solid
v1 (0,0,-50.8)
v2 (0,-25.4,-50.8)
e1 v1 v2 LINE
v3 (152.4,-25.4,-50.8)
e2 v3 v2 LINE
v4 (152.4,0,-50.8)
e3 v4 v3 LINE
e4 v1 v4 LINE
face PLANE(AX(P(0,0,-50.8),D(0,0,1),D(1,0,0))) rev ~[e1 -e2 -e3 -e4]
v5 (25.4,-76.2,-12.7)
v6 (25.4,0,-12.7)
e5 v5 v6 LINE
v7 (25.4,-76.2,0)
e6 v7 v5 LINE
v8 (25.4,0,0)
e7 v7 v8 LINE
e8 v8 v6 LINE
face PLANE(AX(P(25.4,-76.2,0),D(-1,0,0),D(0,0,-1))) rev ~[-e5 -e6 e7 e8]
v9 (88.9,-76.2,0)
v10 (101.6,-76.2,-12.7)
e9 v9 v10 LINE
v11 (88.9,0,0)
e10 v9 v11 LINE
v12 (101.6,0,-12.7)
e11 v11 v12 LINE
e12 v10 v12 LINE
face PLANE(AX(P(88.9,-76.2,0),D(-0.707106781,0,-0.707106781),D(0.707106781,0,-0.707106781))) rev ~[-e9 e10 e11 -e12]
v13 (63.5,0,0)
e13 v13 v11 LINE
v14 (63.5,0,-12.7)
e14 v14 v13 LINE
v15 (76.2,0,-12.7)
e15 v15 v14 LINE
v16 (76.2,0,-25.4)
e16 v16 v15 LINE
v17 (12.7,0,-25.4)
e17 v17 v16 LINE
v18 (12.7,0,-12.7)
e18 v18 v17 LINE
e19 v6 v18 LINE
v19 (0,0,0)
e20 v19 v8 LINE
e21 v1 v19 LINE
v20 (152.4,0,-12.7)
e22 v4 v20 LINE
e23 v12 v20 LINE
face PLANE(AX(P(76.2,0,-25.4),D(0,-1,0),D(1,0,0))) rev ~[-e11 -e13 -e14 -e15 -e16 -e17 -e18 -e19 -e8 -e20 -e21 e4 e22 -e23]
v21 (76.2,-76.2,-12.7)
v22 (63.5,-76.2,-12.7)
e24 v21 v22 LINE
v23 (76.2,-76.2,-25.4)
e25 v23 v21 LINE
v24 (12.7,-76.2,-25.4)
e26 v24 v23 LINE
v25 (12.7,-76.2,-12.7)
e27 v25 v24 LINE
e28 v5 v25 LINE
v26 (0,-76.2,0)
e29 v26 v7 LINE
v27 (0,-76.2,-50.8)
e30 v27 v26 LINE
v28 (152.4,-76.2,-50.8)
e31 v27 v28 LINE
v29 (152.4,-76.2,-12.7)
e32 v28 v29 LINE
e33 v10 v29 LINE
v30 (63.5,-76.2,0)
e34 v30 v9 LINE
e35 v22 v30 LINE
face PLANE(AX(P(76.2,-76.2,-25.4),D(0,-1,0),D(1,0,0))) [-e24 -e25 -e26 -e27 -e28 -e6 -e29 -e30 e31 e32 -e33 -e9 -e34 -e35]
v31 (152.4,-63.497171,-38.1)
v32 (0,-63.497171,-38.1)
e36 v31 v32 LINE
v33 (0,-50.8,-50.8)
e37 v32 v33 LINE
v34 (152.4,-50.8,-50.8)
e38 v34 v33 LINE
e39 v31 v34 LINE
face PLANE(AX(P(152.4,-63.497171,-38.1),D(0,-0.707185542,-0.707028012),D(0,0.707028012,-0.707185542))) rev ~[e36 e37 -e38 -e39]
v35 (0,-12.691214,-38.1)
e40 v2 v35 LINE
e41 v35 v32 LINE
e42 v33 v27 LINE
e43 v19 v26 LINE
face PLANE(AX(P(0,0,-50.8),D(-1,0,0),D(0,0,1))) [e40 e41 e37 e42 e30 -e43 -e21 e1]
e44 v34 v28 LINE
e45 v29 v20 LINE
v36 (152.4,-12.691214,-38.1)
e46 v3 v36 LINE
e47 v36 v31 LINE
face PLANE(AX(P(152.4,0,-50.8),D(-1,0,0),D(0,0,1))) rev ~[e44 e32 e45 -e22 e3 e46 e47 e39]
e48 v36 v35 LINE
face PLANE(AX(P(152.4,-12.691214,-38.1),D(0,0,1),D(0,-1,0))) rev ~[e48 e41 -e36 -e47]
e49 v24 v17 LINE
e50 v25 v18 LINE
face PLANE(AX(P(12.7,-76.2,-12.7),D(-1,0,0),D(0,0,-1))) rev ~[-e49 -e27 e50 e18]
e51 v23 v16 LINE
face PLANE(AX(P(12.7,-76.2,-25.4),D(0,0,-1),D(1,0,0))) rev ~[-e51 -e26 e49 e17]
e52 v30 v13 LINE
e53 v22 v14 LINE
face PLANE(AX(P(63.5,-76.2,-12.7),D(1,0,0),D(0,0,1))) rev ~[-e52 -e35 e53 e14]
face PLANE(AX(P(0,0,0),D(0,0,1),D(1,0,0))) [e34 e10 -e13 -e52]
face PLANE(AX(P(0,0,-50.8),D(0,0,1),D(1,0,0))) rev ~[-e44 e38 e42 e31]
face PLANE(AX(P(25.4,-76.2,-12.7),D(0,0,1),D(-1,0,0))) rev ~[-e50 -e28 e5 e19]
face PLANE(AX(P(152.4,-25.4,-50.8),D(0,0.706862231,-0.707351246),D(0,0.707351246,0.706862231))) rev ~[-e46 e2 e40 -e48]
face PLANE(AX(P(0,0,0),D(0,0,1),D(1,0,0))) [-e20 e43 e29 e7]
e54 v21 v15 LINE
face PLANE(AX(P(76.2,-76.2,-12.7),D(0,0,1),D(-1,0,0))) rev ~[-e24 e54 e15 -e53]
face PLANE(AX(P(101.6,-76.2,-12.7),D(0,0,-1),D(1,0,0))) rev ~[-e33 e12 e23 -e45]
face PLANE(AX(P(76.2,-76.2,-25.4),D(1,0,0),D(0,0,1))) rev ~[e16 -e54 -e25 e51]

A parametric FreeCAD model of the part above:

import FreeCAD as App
import Part
import Sketcher
from FreeCAD import Vector
Q = App.Units.Quantity

doc = App.newDocument("Part")
params = doc.addObject("Spreadsheet::Sheet", "Params")
for row, (alias, value) in enumerate([
    ("sketch1_width", "6 in"),
    ("sketch1_height", "2 in"),
    ("pad1_length", "3 in"),
    ("sketch2_width", "2 in"),
    ("sketch2_width2", "2.5 in"),
    ("sketch2_height", "0.5 in"),
    ("pocket1_length", "3 in"),
    ("sketch3_width", "1.5 in"),
    ("sketch3_width2", "0.5 in"),
    ("pocket2_length", "3 in"),
    ("sketch4_width", "1 in"),
    ("pocket3_length", "6 in"),
], start=1):
    params.set(f"A{row}", alias)
    params.set(f"B{row}", "=" + value)
    params.setAlias(f"B{row}", alias)

body = doc.addObject("PartDesign::Body", "Body")

sketch1 = body.newObject("Sketcher::SketchObject", "Sketch")
sketch1.AttachmentSupport = (doc.getObject("XZ_Plane"), [""])
sketch1.MapMode = "FlatFace"
sketch1.addGeometry(Part.LineSegment(Vector(0, 0, 0), Vector(0, -50.8, 0)), False)
sketch1.addGeometry(Part.LineSegment(Vector(0, -50.8, 0), Vector(152.4, -50.8, 0)), False)
sketch1.addGeometry(Part.LineSegment(Vector(152.4, -50.8, 0), Vector(152.4, 0, 0)), False)
sketch1.addGeometry(Part.LineSegment(Vector(152.4, 0, 0), Vector(0, 0, 0)), False)
sketch1.addConstraint(Sketcher.Constraint("Coincident", 0, 2, 1, 1))
sketch1.addConstraint(Sketcher.Constraint("Coincident", 1, 2, 2, 1))
sketch1.addConstraint(Sketcher.Constraint("Coincident", 2, 2, 3, 1))
sketch1.addConstraint(Sketcher.Constraint("Coincident", 3, 2, 0, 1))
sketch1.addConstraint(Sketcher.Constraint("Vertical", 0))
sketch1.addConstraint(Sketcher.Constraint("Horizontal", 1))
sketch1.addConstraint(Sketcher.Constraint("Vertical", 2))
sketch1.addConstraint(Sketcher.Constraint("Horizontal", 3))
sketch1.addConstraint(Sketcher.Constraint("Coincident", 3, 2, -1, 1))
sketch1.addConstraint(Sketcher.Constraint("DistanceX", 1, 1, 1, 2, Q("6 in")))
sketch1.addConstraint(Sketcher.Constraint("DistanceY", 0, 2, 0, 1, Q("2 in")))
sketch1.setExpression("Constraints[9]", "Params.sketch1_width")
sketch1.setExpression("Constraints[10]", "Params.sketch1_height")
pad1 = body.newObject("PartDesign::Pad", "Pad")
pad1.Profile = sketch1
pad1.setExpression("Length", "Params.pad1_length")

sketch2 = body.newObject("Sketcher::SketchObject", "Sketch001")
sketch2.AttachmentSupport = (doc.getObject("XZ_Plane"), [""])
sketch2.MapMode = "FlatFace"
sketch2.AttachmentOffset = App.Placement(Vector(0, 0, 3 * 25.4), App.Rotation())
sketch2.addGeometry(Part.LineSegment(Vector(152.4, -12.7, 0), Vector(152.4, 0, 0)), False)
sketch2.addGeometry(Part.LineSegment(Vector(152.4, 0, 0), Vector(88.9, 0, 0)), False)
sketch2.addGeometry(Part.LineSegment(Vector(88.9, 0, 0), Vector(101.6, -12.7, 0)), False)
sketch2.addGeometry(Part.LineSegment(Vector(101.6, -12.7, 0), Vector(152.4, -12.7, 0)), False)
sketch2.addConstraint(Sketcher.Constraint("Coincident", 0, 2, 1, 1))
sketch2.addConstraint(Sketcher.Constraint("Coincident", 1, 2, 2, 1))
sketch2.addConstraint(Sketcher.Constraint("Coincident", 2, 2, 3, 1))
sketch2.addConstraint(Sketcher.Constraint("Coincident", 3, 2, 0, 1))
sketch2.addConstraint(Sketcher.Constraint("Vertical", 0))
sketch2.addConstraint(Sketcher.Constraint("Horizontal", 1))
sketch2.addConstraint(Sketcher.Constraint("Horizontal", 3))
sketch2.addConstraint(Sketcher.Constraint("PointOnObject", 0, 2, -1))
sketch2.addConstraint(Sketcher.Constraint("DistanceX", 3, 1, 3, 2, Q("2 in")))
sketch2.addConstraint(Sketcher.Constraint("DistanceX", 1, 2, 1, 1, Q("2.5 in")))
sketch2.addConstraint(Sketcher.Constraint("DistanceY", 0, 1, 0, 2, Q("0.5 in")))
sketch2.addConstraint(Sketcher.Constraint("DistanceX", -1, 1, 0, 2, Q("6 in")))
sketch2.setExpression("Constraints[8]", "Params.sketch2_width")
sketch2.setExpression("Constraints[9]", "Params.sketch2_width2")
sketch2.setExpression("Constraints[10]", "Params.sketch2_height")
pocket1 = body.newObject("PartDesign::Pocket", "Pocket")
pocket1.Profile = sketch2
pocket1.setExpression("Length", "Params.pocket1_length")

sketch3 = body.newObject("Sketcher::SketchObject", "Sketch002")
sketch3.AttachmentSupport = (doc.getObject("XZ_Plane"), [""])
sketch3.MapMode = "FlatFace"
sketch3.AttachmentOffset = App.Placement(Vector(0, 0, 3 * 25.4), App.Rotation())
sketch3.addGeometry(Part.LineSegment(Vector(63.5, 0, 0), Vector(25.4, 0, 0)), False)
sketch3.addGeometry(Part.LineSegment(Vector(25.4, 0, 0), Vector(25.4, -12.7, 0)), False)
sketch3.addGeometry(Part.LineSegment(Vector(25.4, -12.7, 0), Vector(12.7, -12.7, 0)), False)
sketch3.addGeometry(Part.LineSegment(Vector(12.7, -12.7, 0), Vector(12.7, -25.4, 0)), False)
sketch3.addGeometry(Part.LineSegment(Vector(12.7, -25.4, 0), Vector(76.2, -25.4, 0)), False)
sketch3.addGeometry(Part.LineSegment(Vector(76.2, -25.4, 0), Vector(76.2, -12.7, 0)), False)
sketch3.addGeometry(Part.LineSegment(Vector(76.2, -12.7, 0), Vector(63.5, -12.7, 0)), False)
sketch3.addGeometry(Part.LineSegment(Vector(63.5, -12.7, 0), Vector(63.5, 0, 0)), False)
sketch3.addConstraint(Sketcher.Constraint("Coincident", 0, 2, 1, 1))
sketch3.addConstraint(Sketcher.Constraint("Coincident", 1, 2, 2, 1))
sketch3.addConstraint(Sketcher.Constraint("Coincident", 2, 2, 3, 1))
sketch3.addConstraint(Sketcher.Constraint("Coincident", 3, 2, 4, 1))
sketch3.addConstraint(Sketcher.Constraint("Coincident", 4, 2, 5, 1))
sketch3.addConstraint(Sketcher.Constraint("Coincident", 5, 2, 6, 1))
sketch3.addConstraint(Sketcher.Constraint("Coincident", 6, 2, 7, 1))
sketch3.addConstraint(Sketcher.Constraint("Coincident", 7, 2, 0, 1))
sketch3.addConstraint(Sketcher.Constraint("Horizontal", 0))
sketch3.addConstraint(Sketcher.Constraint("Vertical", 1))
sketch3.addConstraint(Sketcher.Constraint("Horizontal", 2))
sketch3.addConstraint(Sketcher.Constraint("Vertical", 3))
sketch3.addConstraint(Sketcher.Constraint("Horizontal", 4))
sketch3.addConstraint(Sketcher.Constraint("Vertical", 5))
sketch3.addConstraint(Sketcher.Constraint("Horizontal", 6))
sketch3.addConstraint(Sketcher.Constraint("Vertical", 7))
sketch3.addConstraint(Sketcher.Constraint("PointOnObject", 0, 2, -1))
sketch3.addConstraint(Sketcher.Constraint("Horizontal", 2, 2, 5, 2))
sketch3.addConstraint(Sketcher.Constraint("Equal", 2, 6))
sketch3.addConstraint(Sketcher.Constraint("Equal", 6, 1))
sketch3.addConstraint(Sketcher.Constraint("Equal", 1, 3))
sketch3.addConstraint(Sketcher.Constraint("DistanceX", 0, 2, 0, 1, Q("1.5 in")))
sketch3.addConstraint(Sketcher.Constraint("DistanceX", 2, 2, 2, 1, Q("0.5 in")))
sketch3.addConstraint(Sketcher.Constraint("DistanceX", -1, 1, 0, 2, Q("1 in")))
sketch3.setExpression("Constraints[21]", "Params.sketch3_width")
sketch3.setExpression("Constraints[22]", "Params.sketch3_width2")
pocket2 = body.newObject("PartDesign::Pocket", "Pocket001")
pocket2.Profile = sketch3
pocket2.setExpression("Length", "Params.pocket2_length")

sketch4 = body.newObject("Sketcher::SketchObject", "Sketch003")
sketch4.AttachmentSupport = (doc.getObject("YZ_Plane"), [""])
sketch4.MapMode = "FlatFace"
sketch4.AttachmentOffset = App.Placement(Vector(0, 0, 6 * 25.4), App.Rotation())
sketch4.addGeometry(Part.LineSegment(Vector(-63.497171, -38.1, 0), Vector(-50.8, -50.8, 0)), False)
sketch4.addGeometry(Part.LineSegment(Vector(-50.8, -50.8, 0), Vector(-25.4, -50.8, 0)), False)
sketch4.addGeometry(Part.LineSegment(Vector(-25.4, -50.8, 0), Vector(-12.691214, -38.1, 0)), False)
sketch4.addGeometry(Part.LineSegment(Vector(-12.691214, -38.1, 0), Vector(-63.497171, -38.1, 0)), False)
sketch4.addConstraint(Sketcher.Constraint("Coincident", 0, 2, 1, 1))
sketch4.addConstraint(Sketcher.Constraint("Coincident", 1, 2, 2, 1))
sketch4.addConstraint(Sketcher.Constraint("Coincident", 2, 2, 3, 1))
sketch4.addConstraint(Sketcher.Constraint("Coincident", 3, 2, 0, 1))
sketch4.addConstraint(Sketcher.Constraint("Horizontal", 1))
sketch4.addConstraint(Sketcher.Constraint("Horizontal", 3))
sketch4.addConstraint(Sketcher.Constraint("DistanceX", 1, 1, 1, 2, Q("1 in")))
sketch4.addConstraint(Sketcher.Constraint("DistanceX", 0, 2, -1, 1, Q("2 in")))
sketch4.addConstraint(Sketcher.Constraint("DistanceY", 0, 2, -1, 1, Q("2 in")))
sketch4.addConstraint(Sketcher.Constraint("DistanceY", 2, 2, -1, 1, Q("1.5 in")))
sketch4.addConstraint(Sketcher.Constraint("Distance", 0, Q("17.958512 mm")))
sketch4.addConstraint(Sketcher.Constraint("DistanceX", 3, 2, 3, 1, Q("50.805957 mm")))
sketch4.setExpression("Constraints[6]", "Params.sketch4_width")
pocket3 = body.newObject("PartDesign::Pocket", "Pocket002")
pocket3.Profile = sketch4
pocket3.setExpression("Length", "Params.pocket3_length")

doc.recompute()
